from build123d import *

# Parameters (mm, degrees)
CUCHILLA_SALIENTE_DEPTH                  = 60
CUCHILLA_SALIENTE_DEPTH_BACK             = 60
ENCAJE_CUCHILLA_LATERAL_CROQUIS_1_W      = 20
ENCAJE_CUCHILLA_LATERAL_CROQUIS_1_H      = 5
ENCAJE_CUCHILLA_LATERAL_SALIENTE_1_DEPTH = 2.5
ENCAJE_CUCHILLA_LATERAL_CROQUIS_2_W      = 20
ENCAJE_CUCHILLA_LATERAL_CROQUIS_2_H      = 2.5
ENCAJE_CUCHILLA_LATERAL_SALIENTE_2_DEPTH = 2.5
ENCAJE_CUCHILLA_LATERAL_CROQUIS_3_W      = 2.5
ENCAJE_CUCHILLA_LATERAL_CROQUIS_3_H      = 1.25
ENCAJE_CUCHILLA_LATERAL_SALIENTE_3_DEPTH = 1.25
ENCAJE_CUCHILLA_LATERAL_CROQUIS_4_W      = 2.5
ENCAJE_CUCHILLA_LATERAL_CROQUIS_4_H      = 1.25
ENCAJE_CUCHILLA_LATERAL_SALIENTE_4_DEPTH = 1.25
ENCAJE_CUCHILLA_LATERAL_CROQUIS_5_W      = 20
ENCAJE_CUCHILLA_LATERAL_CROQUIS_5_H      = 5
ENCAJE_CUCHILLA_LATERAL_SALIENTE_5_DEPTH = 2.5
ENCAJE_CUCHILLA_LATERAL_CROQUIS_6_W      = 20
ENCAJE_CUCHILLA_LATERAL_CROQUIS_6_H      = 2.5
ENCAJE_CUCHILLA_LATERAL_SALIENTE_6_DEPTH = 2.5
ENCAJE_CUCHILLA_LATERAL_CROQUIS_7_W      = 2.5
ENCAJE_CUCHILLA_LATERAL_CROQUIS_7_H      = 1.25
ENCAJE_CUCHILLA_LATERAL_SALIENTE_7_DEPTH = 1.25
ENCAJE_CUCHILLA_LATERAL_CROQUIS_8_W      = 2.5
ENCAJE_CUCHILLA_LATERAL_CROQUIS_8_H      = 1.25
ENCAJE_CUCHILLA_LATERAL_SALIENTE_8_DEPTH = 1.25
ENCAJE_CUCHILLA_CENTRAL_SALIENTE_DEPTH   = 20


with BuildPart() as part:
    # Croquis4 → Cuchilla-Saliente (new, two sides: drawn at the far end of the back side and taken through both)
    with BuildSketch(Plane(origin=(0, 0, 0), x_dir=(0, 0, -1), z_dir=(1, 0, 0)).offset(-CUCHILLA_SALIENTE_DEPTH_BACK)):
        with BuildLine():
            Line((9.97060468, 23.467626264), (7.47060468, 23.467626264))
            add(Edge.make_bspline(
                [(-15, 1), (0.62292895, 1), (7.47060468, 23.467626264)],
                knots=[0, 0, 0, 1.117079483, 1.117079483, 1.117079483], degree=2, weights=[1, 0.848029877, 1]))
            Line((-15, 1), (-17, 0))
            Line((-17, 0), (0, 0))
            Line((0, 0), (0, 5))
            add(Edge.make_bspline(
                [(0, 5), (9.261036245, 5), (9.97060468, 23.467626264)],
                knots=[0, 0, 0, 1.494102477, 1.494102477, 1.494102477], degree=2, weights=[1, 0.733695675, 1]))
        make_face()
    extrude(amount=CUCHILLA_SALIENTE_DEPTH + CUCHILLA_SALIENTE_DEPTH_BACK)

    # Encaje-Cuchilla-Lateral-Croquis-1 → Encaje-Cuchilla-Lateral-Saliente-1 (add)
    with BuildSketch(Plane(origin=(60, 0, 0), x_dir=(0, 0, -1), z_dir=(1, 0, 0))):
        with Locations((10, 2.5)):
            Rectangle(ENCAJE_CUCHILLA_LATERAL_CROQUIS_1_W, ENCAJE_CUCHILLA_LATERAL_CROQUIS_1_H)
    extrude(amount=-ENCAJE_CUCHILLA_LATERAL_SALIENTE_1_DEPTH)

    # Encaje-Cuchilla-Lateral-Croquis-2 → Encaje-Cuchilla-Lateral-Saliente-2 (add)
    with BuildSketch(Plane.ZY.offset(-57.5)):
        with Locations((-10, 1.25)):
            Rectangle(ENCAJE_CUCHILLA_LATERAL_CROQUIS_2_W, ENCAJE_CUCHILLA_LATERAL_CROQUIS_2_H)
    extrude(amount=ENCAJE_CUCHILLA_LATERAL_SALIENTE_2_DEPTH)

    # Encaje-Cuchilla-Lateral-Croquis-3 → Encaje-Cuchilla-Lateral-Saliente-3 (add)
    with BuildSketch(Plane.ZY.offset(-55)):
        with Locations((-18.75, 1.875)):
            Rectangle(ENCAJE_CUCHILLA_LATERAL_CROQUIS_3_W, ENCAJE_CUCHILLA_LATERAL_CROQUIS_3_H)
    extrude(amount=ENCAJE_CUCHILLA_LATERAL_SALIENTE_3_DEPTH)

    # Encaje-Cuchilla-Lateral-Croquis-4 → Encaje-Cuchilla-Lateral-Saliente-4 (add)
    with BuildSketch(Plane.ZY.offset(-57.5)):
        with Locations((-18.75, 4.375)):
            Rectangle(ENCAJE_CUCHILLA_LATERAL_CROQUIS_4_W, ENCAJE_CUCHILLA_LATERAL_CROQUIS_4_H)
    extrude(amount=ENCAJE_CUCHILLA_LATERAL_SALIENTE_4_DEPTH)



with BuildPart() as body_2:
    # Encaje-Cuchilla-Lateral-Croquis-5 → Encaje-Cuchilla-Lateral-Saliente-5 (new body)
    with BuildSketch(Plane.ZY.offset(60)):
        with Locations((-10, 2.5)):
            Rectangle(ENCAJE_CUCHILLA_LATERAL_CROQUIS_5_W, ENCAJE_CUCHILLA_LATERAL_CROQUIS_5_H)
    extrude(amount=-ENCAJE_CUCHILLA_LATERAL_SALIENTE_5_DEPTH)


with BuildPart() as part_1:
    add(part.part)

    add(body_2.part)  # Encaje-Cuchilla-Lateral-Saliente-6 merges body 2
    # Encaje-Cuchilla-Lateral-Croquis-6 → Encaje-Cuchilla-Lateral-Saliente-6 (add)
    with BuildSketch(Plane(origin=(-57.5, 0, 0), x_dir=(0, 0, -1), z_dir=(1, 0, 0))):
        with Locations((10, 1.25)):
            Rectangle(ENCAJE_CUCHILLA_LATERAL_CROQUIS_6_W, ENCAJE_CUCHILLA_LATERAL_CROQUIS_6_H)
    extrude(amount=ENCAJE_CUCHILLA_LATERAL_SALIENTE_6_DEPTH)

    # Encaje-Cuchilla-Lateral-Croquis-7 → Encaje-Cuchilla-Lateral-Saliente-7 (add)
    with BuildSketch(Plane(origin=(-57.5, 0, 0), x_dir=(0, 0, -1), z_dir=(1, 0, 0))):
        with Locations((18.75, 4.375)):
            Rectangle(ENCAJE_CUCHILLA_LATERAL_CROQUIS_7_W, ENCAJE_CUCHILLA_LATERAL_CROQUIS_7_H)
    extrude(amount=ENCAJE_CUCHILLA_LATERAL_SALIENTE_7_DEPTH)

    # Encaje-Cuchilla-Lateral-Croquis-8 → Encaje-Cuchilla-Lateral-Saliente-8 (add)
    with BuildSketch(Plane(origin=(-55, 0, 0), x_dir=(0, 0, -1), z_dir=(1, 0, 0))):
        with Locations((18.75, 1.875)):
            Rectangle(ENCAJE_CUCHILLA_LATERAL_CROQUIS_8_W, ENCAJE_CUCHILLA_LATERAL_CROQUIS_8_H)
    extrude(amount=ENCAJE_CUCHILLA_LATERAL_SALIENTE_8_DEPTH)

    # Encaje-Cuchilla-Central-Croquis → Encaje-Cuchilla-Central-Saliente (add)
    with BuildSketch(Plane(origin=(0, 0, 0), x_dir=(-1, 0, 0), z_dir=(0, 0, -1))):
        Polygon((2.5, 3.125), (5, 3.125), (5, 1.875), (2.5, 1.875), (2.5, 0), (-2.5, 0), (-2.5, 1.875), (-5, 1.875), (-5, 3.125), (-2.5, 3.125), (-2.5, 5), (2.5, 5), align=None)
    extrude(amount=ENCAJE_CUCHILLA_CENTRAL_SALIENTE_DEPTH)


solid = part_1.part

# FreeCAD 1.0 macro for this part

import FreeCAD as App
import Part
import Sketcher
from FreeCAD import Vector
Q = App.Units.Quantity

doc = App.newDocument("Part")
body = doc.addObject("PartDesign::Body", "Body")

sketch1 = doc.addObject("Sketcher::SketchObject", "Sketch")
body.addObject(sketch1)
sketch1.AttachmentSupport = (doc.YZ_Plane, [""])
sketch1.MapMode = "FlatFace"
sketch1.addGeometry([
    Part.LineSegment(Vector(23.467626, -9.970605, 0), Vector(23.467626, -7.470605, 0)),
    Part.BSplineCurve([Vector(1, 15, 0), Vector(1, -0.622929, 0), Vector(23.467626, -7.470605, 0)], [3, 3], [0, 1.117079483], False, 2, [1, 0.848029877, 1], False),
    Part.LineSegment(Vector(1, 15, 0), Vector(0, 17, 0)),
    Part.LineSegment(Vector(0, 17, 0), Vector(0, 0, 0)),
    Part.LineSegment(Vector(0, 0, 0), Vector(5, 0, 0)),
    Part.BSplineCurve([Vector(5, 0, 0), Vector(5, -9.261036, 0), Vector(23.467626, -9.970605, 0)], [3, 3], [0, 1.494102477], False, 2, [1, 0.733695675, 1], False),
], False)
sketch1.addConstraint([
    Sketcher.Constraint("Block", 1),
    Sketcher.Constraint("Block", 5),
    Sketcher.Constraint("Coincident", 0, 2, 1, 2),
    Sketcher.Constraint("Coincident", 1, 1, 2, 1),
    Sketcher.Constraint("Coincident", 2, 2, 3, 1),
    Sketcher.Constraint("Coincident", 3, 2, 4, 1),
    Sketcher.Constraint("Coincident", 4, 2, 5, 1),
    Sketcher.Constraint("Coincident", 5, 2, 0, 1),
    Sketcher.Constraint("Vertical", 3),
    Sketcher.Constraint("Horizontal", 4),
    Sketcher.Constraint("PointOnObject", 2, 2, -2),
    Sketcher.Constraint("DistanceY", 3, 2, 3, 1, Q("17 mm")),
])
pad1 = doc.addObject("PartDesign::Pad", "Pad")
body.addObject(pad1)
pad1.Profile = sketch1
pad1.Type = "TwoLengths"
pad1.Length = 60
pad1.Length2 = 60

sketch2 = doc.addObject("Sketcher::SketchObject", "Sketch001")
body.addObject(sketch2)
sketch2.AttachmentSupport = (doc.YZ_Plane, [""])
sketch2.MapMode = "FlatFace"
sketch2.AttachmentOffset = App.Placement(Vector(0, 0, 60), App.Rotation())
sketch2.addGeometry([
    Part.LineSegment(Vector(5, 0, 0), Vector(0, 0, 0)),
    Part.LineSegment(Vector(0, 0, 0), Vector(0, -20, 0)),
    Part.LineSegment(Vector(0, -20, 0), Vector(5, -20, 0)),
    Part.LineSegment(Vector(5, -20, 0), Vector(5, 0, 0)),
], False)
sketch2.addConstraint([
    Sketcher.Constraint("Coincident", 0, 2, 1, 1),
    Sketcher.Constraint("Coincident", 1, 2, 2, 1),
    Sketcher.Constraint("Coincident", 2, 2, 3, 1),
    Sketcher.Constraint("Coincident", 3, 2, 0, 1),
    Sketcher.Constraint("Horizontal", 0),
    Sketcher.Constraint("Vertical", 1),
    Sketcher.Constraint("Horizontal", 2),
    Sketcher.Constraint("Vertical", 3),
    Sketcher.Constraint("Coincident", 0, 2, -1, 1),
    Sketcher.Constraint("DistanceX", 0, 2, 0, 1, Q("5 mm")),
    Sketcher.Constraint("DistanceY", 1, 2, 1, 1, Q("20 mm")),
])
pad2 = doc.addObject("PartDesign::Pad", "Pad001")
body.addObject(pad2)
pad2.Profile = sketch2
pad2.Length = 2.5
pad2.Reversed = True

sketch3 = doc.addObject("Sketcher::SketchObject", "Sketch002")
body.addObject(sketch3)
sketch3.AttachmentSupport = (doc.YZ_Plane, [""])
sketch3.MapMode = "FlatFace"
sketch3.AttachmentOffset = App.Placement(Vector(0, 0, 57.5), App.Rotation())
sketch3.addGeometry([
    Part.LineSegment(Vector(2.5, -20, 0), Vector(0, -20, 0)),
    Part.LineSegment(Vector(0, -20, 0), Vector(0, 0, 0)),
    Part.LineSegment(Vector(0, 0, 0), Vector(2.5, 0, 0)),
    Part.LineSegment(Vector(2.5, 0, 0), Vector(2.5, -20, 0)),
], False)
sketch3.addConstraint([
    Sketcher.Constraint("Coincident", 0, 2, 1, 1),
    Sketcher.Constraint("Coincident", 1, 2, 2, 1),
    Sketcher.Constraint("Coincident", 2, 2, 3, 1),
    Sketcher.Constraint("Coincident", 3, 2, 0, 1),
    Sketcher.Constraint("Horizontal", 0),
    Sketcher.Constraint("Vertical", 1),
    Sketcher.Constraint("Horizontal", 2),
    Sketcher.Constraint("Vertical", 3),
    Sketcher.Constraint("Coincident", 1, 2, -1, 1),
    Sketcher.Constraint("DistanceY", 1, 1, 1, 2, Q("20 mm")),
    Sketcher.Constraint("DistanceX", 0, 2, 0, 1, Q("2.5 mm")),
])
pad3 = doc.addObject("PartDesign::Pad", "Pad002")
body.addObject(pad3)
pad3.Profile = sketch3
pad3.Length = 2.5
pad3.Reversed = True

sketch4 = doc.addObject("Sketcher::SketchObject", "Sketch003")
body.addObject(sketch4)
sketch4.AttachmentSupport = (doc.YZ_Plane, [""])
sketch4.MapMode = "FlatFace"
sketch4.AttachmentOffset = App.Placement(Vector(0, 0, 55), App.Rotation())
sketch4.addGeometry([
    Part.LineSegment(Vector(2.5, -20, 0), Vector(1.2, -20, 0)),
    Part.LineSegment(Vector(1.2, -20, 0), Vector(1.2, -17.5, 0)),
    Part.LineSegment(Vector(1.2, -17.5, 0), Vector(2.5, -17.5, 0)),
    Part.LineSegment(Vector(2.5, -17.5, 0), Vector(2.5, -20, 0)),
], False)
sketch4.addConstraint([
    Sketcher.Constraint("Coincident", 0, 2, 1, 1),
    Sketcher.Constraint("Coincident", 1, 2, 2, 1),
    Sketcher.Constraint("Coincident", 2, 2, 3, 1),
    Sketcher.Constraint("Coincident", 3, 2, 0, 1),
    Sketcher.Constraint("Horizontal", 0),
    Sketcher.Constraint("Vertical", 1),
    Sketcher.Constraint("Horizontal", 2),
    Sketcher.Constraint("Vertical", 3),
    Sketcher.Constraint("DistanceY", 1, 1, 1, 2, Q("2.5 mm")),
    Sketcher.Constraint("DistanceY", 0, 2, -1, 1, Q("20 mm")),
    Sketcher.Constraint("DistanceX", 0, 2, 0, 1, Q("1.25 mm")),
    Sketcher.Constraint("DistanceX", -1, 1, 2, 2, Q("2.5 mm")),
])
pad4 = doc.addObject("PartDesign::Pad", "Pad003")
body.addObject(pad4)
pad4.Profile = sketch4
pad4.Length = 1.25
pad4.Reversed = True

sketch5 = doc.addObject("Sketcher::SketchObject", "Sketch004")
body.addObject(sketch5)
sketch5.AttachmentSupport = (doc.YZ_Plane, [""])
sketch5.MapMode = "FlatFace"
sketch5.AttachmentOffset = App.Placement(Vector(0, 0, 57.5), App.Rotation())
sketch5.addGeometry([
    Part.LineSegment(Vector(5, -20, 0), Vector(3.8, -20, 0)),
    Part.LineSegment(Vector(3.8, -20, 0), Vector(3.8, -17.5, 0)),
    Part.LineSegment(Vector(3.8, -17.5, 0), Vector(5, -17.5, 0)),
    Part.LineSegment(Vector(5, -17.5, 0), Vector(5, -20, 0)),
], False)
sketch5.addConstraint([
    Sketcher.Constraint("Coincident", 0, 2, 1, 1),
    Sketcher.Constraint("Coincident", 1, 2, 2, 1),
    Sketcher.Constraint("Coincident", 2, 2, 3, 1),
    Sketcher.Constraint("Coincident", 3, 2, 0, 1),
    Sketcher.Constraint("Horizontal", 0),
    Sketcher.Constraint("Vertical", 1),
    Sketcher.Constraint("Horizontal", 2),
    Sketcher.Constraint("Vertical", 3),
    Sketcher.Constraint("DistanceY", 1, 1, 1, 2, Q("2.5 mm")),
    Sketcher.Constraint("DistanceY", 0, 2, -1, 1, Q("20 mm")),
    Sketcher.Constraint("DistanceX", -1, 1, 2, 2, Q("5 mm")),
    Sketcher.Constraint("DistanceX", 0, 2, 0, 1, Q("1.25 mm")),
])
pad5 = doc.addObject("PartDesign::Pad", "Pad004")
body.addObject(pad5)
pad5.Profile = sketch5
pad5.Length = 1.25
pad5.Reversed = True
body2 = doc.addObject("PartDesign::Body", "Body001")

sketch6 = doc.addObject("Sketcher::SketchObject", "Sketch005")
body2.addObject(sketch6)
sketch6.AttachmentSupport = (doc.getObject("YZ_Plane001"), [""])
sketch6.MapMode = "FlatFace"
sketch6.AttachmentOffset = App.Placement(Vector(0, 0, -60), App.Rotation())
sketch6.addGeometry([
    Part.LineSegment(Vector(5, -20, 0), Vector(0, -20, 0)),
    Part.LineSegment(Vector(0, -20, 0), Vector(0, 0, 0)),
    Part.LineSegment(Vector(0, 0, 0), Vector(5, 0, 0)),
    Part.LineSegment(Vector(5, 0, 0), Vector(5, -20, 0)),
], False)
sketch6.addConstraint([
    Sketcher.Constraint("Coincident", 0, 2, 1, 1),
    Sketcher.Constraint("Coincident", 1, 2, 2, 1),
    Sketcher.Constraint("Coincident", 2, 2, 3, 1),
    Sketcher.Constraint("Coincident", 3, 2, 0, 1),
    Sketcher.Constraint("Horizontal", 0),
    Sketcher.Constraint("Vertical", 1),
    Sketcher.Constraint("Horizontal", 2),
    Sketcher.Constraint("Vertical", 3),
    Sketcher.Constraint("Coincident", 1, 2, -1, 1),
    Sketcher.Constraint("DistanceX", 0, 2, 0, 1, Q("5 mm")),
    Sketcher.Constraint("DistanceY", 1, 1, 1, 2, Q("20 mm")),
])
pad6 = doc.addObject("PartDesign::Pad", "Pad005")
body2.addObject(pad6)
pad6.Profile = sketch6
pad6.Length = 2.5
doc.recompute()

boolean = doc.addObject("PartDesign::Boolean", "Boolean")
body.addObject(boolean)
boolean.Type = "Fuse"
boolean.addObjects([body2])

sketch7 = doc.addObject("Sketcher::SketchObject", "Sketch006")
body.addObject(sketch7)
sketch7.AttachmentSupport = (doc.YZ_Plane, [""])
sketch7.MapMode = "FlatFace"
sketch7.AttachmentOffset = App.Placement(Vector(0, 0, -57.5), App.Rotation())
sketch7.addGeometry([
    Part.LineSegment(Vector(2.5, 0, 0), Vector(0, 0, 0)),
    Part.LineSegment(Vector(0, 0, 0), Vector(0, -20, 0)),
    Part.LineSegment(Vector(0, -20, 0), Vector(2.5, -20, 0)),
    Part.LineSegment(Vector(2.5, -20, 0), Vector(2.5, 0, 0)),
], False)
sketch7.addConstraint([
    Sketcher.Constraint("Coincident", 0, 2, 1, 1),
    Sketcher.Constraint("Coincident", 1, 2, 2, 1),
    Sketcher.Constraint("Coincident", 2, 2, 3, 1),
    Sketcher.Constraint("Coincident", 3, 2, 0, 1),
    Sketcher.Constraint("Horizontal", 0),
    Sketcher.Constraint("Vertical", 1),
    Sketcher.Constraint("Horizontal", 2),
    Sketcher.Constraint("Vertical", 3),
    Sketcher.Constraint("Coincident", 0, 2, -1, 1),
    Sketcher.Constraint("DistanceY", 1, 2, 1, 1, Q("20 mm")),
    Sketcher.Constraint("DistanceX", 0, 2, 0, 1, Q("2.5 mm")),
])
pad7 = doc.addObject("PartDesign::Pad", "Pad006")
body.addObject(pad7)
pad7.Profile = sketch7
pad7.Length = 2.5

sketch8 = doc.addObject("Sketcher::SketchObject", "Sketch007")
body.addObject(sketch8)
sketch8.AttachmentSupport = (doc.YZ_Plane, [""])
sketch8.MapMode = "FlatFace"
sketch8.AttachmentOffset = App.Placement(Vector(0, 0, -57.5), App.Rotation())
sketch8.addGeometry([
    Part.LineSegment(Vector(5, -17.5, 0), Vector(3.8, -17.5, 0)),
    Part.LineSegment(Vector(3.8, -17.5, 0), Vector(3.8, -20, 0)),
    Part.LineSegment(Vector(3.8, -20, 0), Vector(5, -20, 0)),
    Part.LineSegment(Vector(5, -20, 0), Vector(5, -17.5, 0)),
], False)
sketch8.addConstraint([
    Sketcher.Constraint("Coincident", 0, 2, 1, 1),
    Sketcher.Constraint("Coincident", 1, 2, 2, 1),
    Sketcher.Constraint("Coincident", 2, 2, 3, 1),
    Sketcher.Constraint("Coincident", 3, 2, 0, 1),
    Sketcher.Constraint("Horizontal", 0),
    Sketcher.Constraint("Vertical", 1),
    Sketcher.Constraint("Horizontal", 2),
    Sketcher.Constraint("Vertical", 3),
    Sketcher.Constraint("DistanceY", 1, 2, 1, 1, Q("2.5 mm")),
    Sketcher.Constraint("DistanceY", 1, 2, -1, 1, Q("20 mm")),
    Sketcher.Constraint("DistanceX", -1, 1, 2, 2, Q("5 mm")),
    Sketcher.Constraint("DistanceX", 0, 2, 0, 1, Q("1.25 mm")),
])
pad8 = doc.addObject("PartDesign::Pad", "Pad007")
body.addObject(pad8)
pad8.Profile = sketch8
pad8.Length = 1.25

sketch9 = doc.addObject("Sketcher::SketchObject", "Sketch008")
body.addObject(sketch9)
sketch9.AttachmentSupport = (doc.YZ_Plane, [""])
sketch9.MapMode = "FlatFace"
sketch9.AttachmentOffset = App.Placement(Vector(0, 0, -55), App.Rotation())
sketch9.addGeometry([
    Part.LineSegment(Vector(2.5, -17.5, 0), Vector(1.2, -17.5, 0)),
    Part.LineSegment(Vector(1.2, -17.5, 0), Vector(1.2, -20, 0)),
    Part.LineSegment(Vector(1.2, -20, 0), Vector(2.5, -20, 0)),
    Part.LineSegment(Vector(2.5, -20, 0), Vector(2.5, -17.5, 0)),
], False)
sketch9.addConstraint([
    Sketcher.Constraint("Coincident", 0, 2, 1, 1),
    Sketcher.Constraint("Coincident", 1, 2, 2, 1),
    Sketcher.Constraint("Coincident", 2, 2, 3, 1),
    Sketcher.Constraint("Coincident", 3, 2, 0, 1),
    Sketcher.Constraint("Horizontal", 0),
    Sketcher.Constraint("Vertical", 1),
    Sketcher.Constraint("Horizontal", 2),
    Sketcher.Constraint("Vertical", 3),
    Sketcher.Constraint("DistanceY", 1, 2, 1, 1, Q("2.5 mm")),
    Sketcher.Constraint("DistanceY", 1, 2, -1, 1, Q("20 mm")),
    Sketcher.Constraint("DistanceX", 0, 2, 0, 1, Q("1.25 mm")),
    Sketcher.Constraint("DistanceX", -1, 1, 2, 2, Q("2.5 mm")),
])
pad9 = doc.addObject("PartDesign::Pad", "Pad008")
body.addObject(pad9)
pad9.Profile = sketch9
pad9.Length = 1.25

sketch10 = doc.addObject("Sketcher::SketchObject", "Sketch009")
body.addObject(sketch10)
sketch10.AttachmentSupport = (doc.XY_Plane, [""])
sketch10.MapMode = "FlatFace"
sketch10.addGeometry([
    Part.LineSegment(Vector(-5, 3.1, 0), Vector(-2.5, 3.1, 0)),
    Part.LineSegment(Vector(-2.5, 3.1, 0), Vector(-2.5, 5, 0)),
    Part.LineSegment(Vector(-2.5, 5, 0), Vector(2.5, 5, 0)),
    Part.LineSegment(Vector(2.5, 5, 0), Vector(2.5, 3.1, 0)),
    Part.LineSegment(Vector(2.5, 3.1, 0), Vector(5, 3.1, 0)),
    Part.LineSegment(Vector(5, 3.1, 0), Vector(5, 1.9, 0)),
    Part.LineSegment(Vector(5, 1.9, 0), Vector(2.5, 1.9, 0)),
    Part.LineSegment(Vector(2.5, 1.9, 0), Vector(2.5, 0, 0)),
    Part.LineSegment(Vector(2.5, 0, 0), Vector(-2.5, 0, 0)),
    Part.LineSegment(Vector(-2.5, 0, 0), Vector(-2.5, 1.9, 0)),
    Part.LineSegment(Vector(-2.5, 1.9, 0), Vector(-5, 1.9, 0)),
    Part.LineSegment(Vector(-5, 1.9, 0), Vector(-5, 3.1, 0)),
], False)
sketch10.addConstraint([
    Sketcher.Constraint("Coincident", 0, 2, 1, 1),
    Sketcher.Constraint("Coincident", 1, 2, 2, 1),
    Sketcher.Constraint("Coincident", 2, 2, 3, 1),
    Sketcher.Constraint("Coincident", 3, 2, 4, 1),
    Sketcher.Constraint("Coincident", 4, 2, 5, 1),
    Sketcher.Constraint("Coincident", 5, 2, 6, 1),
    Sketcher.Constraint("Coincident", 6, 2, 7, 1),
    Sketcher.Constraint("Coincident", 7, 2, 8, 1),
    Sketcher.Constraint("Coincident", 8, 2, 9, 1),
    Sketcher.Constraint("Coincident", 9, 2, 10, 1),
    Sketcher.Constraint("Coincident", 10, 2, 11, 1),
    Sketcher.Constraint("Coincident", 11, 2, 0, 1),
    Sketcher.Constraint("Horizontal", 0),
    Sketcher.Constraint("Vertical", 1),
    Sketcher.Constraint("Horizontal", 2),
    Sketcher.Constraint("Vertical", 3),
    Sketcher.Constraint("Horizontal", 4),
    Sketcher.Constraint("Vertical", 5),
    Sketcher.Constraint("Horizontal", 6),
    Sketcher.Constraint("Vertical", 7),
    Sketcher.Constraint("Horizontal", 8),
    Sketcher.Constraint("Vertical", 9),
    Sketcher.Constraint("Horizontal", 10),
    Sketcher.Constraint("Vertical", 11),
    Sketcher.Constraint("Symmetric", 7, 2, 8, 2, -1, 1),
    Sketcher.Constraint("Symmetric", 0, 2, 3, 2, -2),
    Sketcher.Constraint("Symmetric", 5, 2, 10, 2, -2),
    Sketcher.Constraint("Vertical", 3, 2, 6, 2),
    Sketcher.Constraint("Equal", 3, 7),
    Sketcher.Constraint("DistanceX", 2, 1, 2, 2, Q("5 mm")),
    Sketcher.Constraint("DistanceX", 0, 1, 0, 2, Q("2.5 mm")),
    Sketcher.Constraint("DistanceY", -1, 1, 1, 2, Q("5 mm")),
    Sketcher.Constraint("DistanceY", 5, 2, 5, 1, Q("1.25 mm")),
])
pad10 = doc.addObject("PartDesign::Pad", "Pad009")
body.addObject(pad10)
pad10.Profile = sketch10
pad10.Length = 20
pad10.Reversed = True

doc.recompute()
